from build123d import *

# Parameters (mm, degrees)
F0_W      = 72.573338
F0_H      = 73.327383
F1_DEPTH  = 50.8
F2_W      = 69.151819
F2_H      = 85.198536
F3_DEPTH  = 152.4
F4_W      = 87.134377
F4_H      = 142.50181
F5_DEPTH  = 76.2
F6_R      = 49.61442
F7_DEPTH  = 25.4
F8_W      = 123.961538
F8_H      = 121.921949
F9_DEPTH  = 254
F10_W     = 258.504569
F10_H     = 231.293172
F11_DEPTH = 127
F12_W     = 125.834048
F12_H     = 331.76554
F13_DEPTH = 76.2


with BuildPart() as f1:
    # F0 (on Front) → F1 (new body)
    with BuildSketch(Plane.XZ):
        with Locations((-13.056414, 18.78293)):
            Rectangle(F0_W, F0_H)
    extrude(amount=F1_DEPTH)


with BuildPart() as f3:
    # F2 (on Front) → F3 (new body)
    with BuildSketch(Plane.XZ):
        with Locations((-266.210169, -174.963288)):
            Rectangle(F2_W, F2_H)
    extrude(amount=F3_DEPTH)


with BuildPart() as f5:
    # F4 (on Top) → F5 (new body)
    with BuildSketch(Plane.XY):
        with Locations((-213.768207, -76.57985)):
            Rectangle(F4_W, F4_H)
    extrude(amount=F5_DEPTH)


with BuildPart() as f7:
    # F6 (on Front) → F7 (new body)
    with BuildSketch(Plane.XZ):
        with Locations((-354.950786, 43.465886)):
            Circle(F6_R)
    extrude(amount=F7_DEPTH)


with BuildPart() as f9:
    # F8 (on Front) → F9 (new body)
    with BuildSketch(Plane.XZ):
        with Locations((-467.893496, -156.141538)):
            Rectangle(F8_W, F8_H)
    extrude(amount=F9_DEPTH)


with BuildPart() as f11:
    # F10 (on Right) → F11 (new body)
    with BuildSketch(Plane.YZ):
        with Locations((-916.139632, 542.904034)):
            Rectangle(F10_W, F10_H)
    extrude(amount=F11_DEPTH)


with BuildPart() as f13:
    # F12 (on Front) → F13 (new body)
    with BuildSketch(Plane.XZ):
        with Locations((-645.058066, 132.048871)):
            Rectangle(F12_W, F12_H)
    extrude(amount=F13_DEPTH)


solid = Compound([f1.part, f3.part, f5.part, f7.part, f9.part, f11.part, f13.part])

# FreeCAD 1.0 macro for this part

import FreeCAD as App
import Part
import Sketcher
from FreeCAD import Vector


def add_polygon(sketch, points):
    """Adds a closed chain of lines whose ends are joined by coincident constraints."""
    first, n = sketch.GeometryCount, len(points)
    for a, b in zip(points, points[1:] + points[:1]):
        sketch.addGeometry(Part.LineSegment(App.Vector(*a, 0), App.Vector(*b, 0)), False)
    for i in range(n):
        sketch.addConstraint(Sketcher.Constraint("Coincident", first + i, 2, first + (i + 1) % n, 1))

doc = App.newDocument("Part")
params = doc.addObject("Spreadsheet::Sheet", "Params")
for row, (alias, value) in enumerate([
    ("pad1_length", "2 in"),
    ("pad2_length", "6 in"),
    ("pad3_length", "3 in"),
    ("pad4_length", "1 in"),
    ("pad5_length", "10 in"),
    ("pad6_length", "5 in"),
    ("pad7_length", "3 in"),
], start=1):
    params.set(f"A{row}", alias)
    params.set(f"B{row}", "=" + value)
    params.setAlias(f"B{row}", alias)

body = doc.addObject("PartDesign::Body", "Body")

sketch1 = body.newObject("Sketcher::SketchObject", "Sketch")
sketch1.AttachmentSupport = (doc.getObject("XZ_Plane"), [""])
sketch1.MapMode = "FlatFace"
add_polygon(sketch1, [(-49, 55), (-49, -18), (23, -18), (23, 55)])
sketch1.addConstraint(Sketcher.Constraint("Vertical", 0))
sketch1.addConstraint(Sketcher.Constraint("Horizontal", 1))
sketch1.addConstraint(Sketcher.Constraint("Vertical", 2))
sketch1.addConstraint(Sketcher.Constraint("Horizontal", 3))
sketch1.addConstraint(Sketcher.Constraint("DistanceX", 1, 1, 1, 2, 72.573338))
sketch1.addConstraint(Sketcher.Constraint("DistanceY", 0, 2, 0, 1, 73.327383))
sketch1.addConstraint(Sketcher.Constraint("DistanceY", 0, 2, -1, 1, 17.880761))
sketch1.addConstraint(Sketcher.Constraint("DistanceX", 0, 2, -1, 1, 49.343083))
pad1 = body.newObject("PartDesign::Pad", "Pad")
pad1.Profile = sketch1
pad1.setExpression("Length", "Params.pad1_length")
body2 = doc.addObject("PartDesign::Body", "Body001")

sketch2 = body2.newObject("Sketcher::SketchObject", "Sketch001")
sketch2.AttachmentSupport = (doc.getObject("XZ_Plane001"), [""])
sketch2.MapMode = "FlatFace"
add_polygon(sketch2, [(-301, -132), (-301, -218), (-232, -218), (-232, -132)])
sketch2.addConstraint(Sketcher.Constraint("Vertical", 0))
sketch2.addConstraint(Sketcher.Constraint("Horizontal", 1))
sketch2.addConstraint(Sketcher.Constraint("Vertical", 2))
sketch2.addConstraint(Sketcher.Constraint("Horizontal", 3))
sketch2.addConstraint(Sketcher.Constraint("DistanceX", 1, 1, 1, 2, 69.151819))
sketch2.addConstraint(Sketcher.Constraint("DistanceY", 0, 2, 0, 1, 85.198536))
sketch2.addConstraint(Sketcher.Constraint("DistanceX", 0, 2, -1, 1, 300.786078))
sketch2.addConstraint(Sketcher.Constraint("DistanceY", 2, 2, -1, 1, 132.36402))
pad2 = body2.newObject("PartDesign::Pad", "Pad001")
pad2.Profile = sketch2
pad2.setExpression("Length", "Params.pad2_length")
body3 = doc.addObject("PartDesign::Body", "Body002")

sketch3 = body3.newObject("Sketcher::SketchObject", "Sketch002")
sketch3.AttachmentSupport = (doc.getObject("XY_Plane002"), [""])
sketch3.MapMode = "FlatFace"
add_polygon(sketch3, [(-257, -5), (-257, -148), (-170, -148), (-170, -5)])
sketch3.addConstraint(Sketcher.Constraint("Vertical", 0))
sketch3.addConstraint(Sketcher.Constraint("Horizontal", 1))
sketch3.addConstraint(Sketcher.Constraint("Vertical", 2))
sketch3.addConstraint(Sketcher.Constraint("Horizontal", 3))
sketch3.addConstraint(Sketcher.Constraint("DistanceY", 0, 2, 0, 1, 142.50181))
sketch3.addConstraint(Sketcher.Constraint("DistanceX", 1, 1, 1, 2, 87.134377))
sketch3.addConstraint(Sketcher.Constraint("DistanceX", 1, 2, -1, 1, 170.201019))
sketch3.addConstraint(Sketcher.Constraint("DistanceY", 0, 2, -1, 1, 147.830755))
pad3 = body3.newObject("PartDesign::Pad", "Pad002")
pad3.Profile = sketch3
pad3.setExpression("Length", "Params.pad3_length")
body4 = doc.addObject("PartDesign::Body", "Body003")

sketch4 = body4.newObject("Sketcher::SketchObject", "Sketch003")
sketch4.AttachmentSupport = (doc.getObject("XZ_Plane003"), [""])
sketch4.MapMode = "FlatFace"
sketch4.addGeometry(Part.Circle(Vector(-355, 43, 0), Vector(0, 0, 1), 50), False)
sketch4.addConstraint(Sketcher.Constraint("Diameter", 0, 99.22884))
sketch4.addConstraint(Sketcher.Constraint("DistanceX", 0, 3, -1, 1, 354.950786))
sketch4.addConstraint(Sketcher.Constraint("DistanceY", -1, 1, 0, 3, 43.465886))
pad4 = body4.newObject("PartDesign::Pad", "Pad003")
pad4.Profile = sketch4
pad4.setExpression("Length", "Params.pad4_length")
body5 = doc.addObject("PartDesign::Body", "Body004")

sketch5 = body5.newObject("Sketcher::SketchObject", "Sketch004")
sketch5.AttachmentSupport = (doc.getObject("XZ_Plane004"), [""])
sketch5.MapMode = "FlatFace"
add_polygon(sketch5, [(-530, -95), (-530, -217), (-406, -217), (-406, -95)])
sketch5.addConstraint(Sketcher.Constraint("Vertical", 0))
sketch5.addConstraint(Sketcher.Constraint("Horizontal", 1))
sketch5.addConstraint(Sketcher.Constraint("Vertical", 2))
sketch5.addConstraint(Sketcher.Constraint("Horizontal", 3))
sketch5.addConstraint(Sketcher.Constraint("DistanceX", 1, 1, 1, 2, 123.961538))
sketch5.addConstraint(Sketcher.Constraint("DistanceY", 0, 2, 0, 1, 121.921949))
sketch5.addConstraint(Sketcher.Constraint("DistanceX", 0, 2, -1, 1, 529.874265))
sketch5.addConstraint(Sketcher.Constraint("DistanceY", 0, 2, -1, 1, 217.102512))
pad5 = body5.newObject("PartDesign::Pad", "Pad004")
pad5.Profile = sketch5
pad5.setExpression("Length", "Params.pad5_length")
body6 = doc.addObject("PartDesign::Body", "Body005")

sketch6 = body6.newObject("Sketcher::SketchObject", "Sketch005")
sketch6.AttachmentSupport = (doc.getObject("YZ_Plane005"), [""])
sketch6.MapMode = "FlatFace"
add_polygon(sketch6, [(-1045, 659), (-1045, 427), (-787, 427), (-787, 659)])
sketch6.addConstraint(Sketcher.Constraint("Vertical", 0))
sketch6.addConstraint(Sketcher.Constraint("Horizontal", 1))
sketch6.addConstraint(Sketcher.Constraint("Vertical", 2))
sketch6.addConstraint(Sketcher.Constraint("Horizontal", 3))
sketch6.addConstraint(Sketcher.Constraint("DistanceX", 1, 1, 1, 2, 258.504569))
sketch6.addConstraint(Sketcher.Constraint("DistanceY", 0, 2, 0, 1, 231.293172))
sketch6.addConstraint(Sketcher.Constraint("DistanceY", -1, 1, 0, 2, 427.257448))
sketch6.addConstraint(Sketcher.Constraint("DistanceX", 0, 2, -1, 1, 1045.391916))
pad6 = body6.newObject("PartDesign::Pad", "Pad005")
pad6.Profile = sketch6
pad6.setExpression("Length", "Params.pad6_length")
body7 = doc.addObject("PartDesign::Body", "Body006")

sketch7 = body7.newObject("Sketcher::SketchObject", "Sketch006")
sketch7.AttachmentSupport = (doc.getObject("XZ_Plane006"), [""])
sketch7.MapMode = "FlatFace"
add_polygon(sketch7, [(-708, 298), (-708, -34), (-582, -34), (-582, 298)])
sketch7.addConstraint(Sketcher.Constraint("Vertical", 0))
sketch7.addConstraint(Sketcher.Constraint("Horizontal", 1))
sketch7.addConstraint(Sketcher.Constraint("Vertical", 2))
sketch7.addConstraint(Sketcher.Constraint("Horizontal", 3))
sketch7.addConstraint(Sketcher.Constraint("DistanceX", 1, 1, 1, 2, 125.834048))
sketch7.addConstraint(Sketcher.Constraint("DistanceY", 0, 2, 0, 1, 331.76554))
sketch7.addConstraint(Sketcher.Constraint("DistanceY", 0, 2, -1, 1, 33.833899))
sketch7.addConstraint(Sketcher.Constraint("DistanceX", 0, 2, -1, 1, 707.97509))
pad7 = body7.newObject("PartDesign::Pad", "Pad006")
pad7.Profile = sketch7
pad7.setExpression("Length", "Params.pad7_length")

doc.recompute()
